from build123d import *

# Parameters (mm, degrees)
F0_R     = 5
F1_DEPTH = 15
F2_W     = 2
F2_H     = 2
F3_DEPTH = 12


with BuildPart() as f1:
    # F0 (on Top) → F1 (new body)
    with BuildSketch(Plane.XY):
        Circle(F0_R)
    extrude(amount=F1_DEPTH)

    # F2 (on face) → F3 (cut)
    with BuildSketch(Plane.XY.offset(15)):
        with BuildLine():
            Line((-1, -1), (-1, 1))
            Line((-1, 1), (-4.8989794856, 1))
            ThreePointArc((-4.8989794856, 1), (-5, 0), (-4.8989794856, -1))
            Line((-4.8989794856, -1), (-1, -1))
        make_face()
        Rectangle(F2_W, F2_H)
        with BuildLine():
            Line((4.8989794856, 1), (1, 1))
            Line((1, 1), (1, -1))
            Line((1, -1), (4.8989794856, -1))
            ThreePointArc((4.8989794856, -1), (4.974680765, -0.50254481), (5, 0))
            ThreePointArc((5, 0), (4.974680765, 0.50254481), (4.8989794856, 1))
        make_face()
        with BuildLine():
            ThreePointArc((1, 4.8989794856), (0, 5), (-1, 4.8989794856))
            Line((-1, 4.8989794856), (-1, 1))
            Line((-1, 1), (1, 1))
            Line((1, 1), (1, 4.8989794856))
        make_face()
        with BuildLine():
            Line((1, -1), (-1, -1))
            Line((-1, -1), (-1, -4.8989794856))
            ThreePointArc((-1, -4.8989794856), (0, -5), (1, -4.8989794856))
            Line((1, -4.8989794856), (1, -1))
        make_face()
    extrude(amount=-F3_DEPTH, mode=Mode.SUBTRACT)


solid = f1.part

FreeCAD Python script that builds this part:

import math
import FreeCAD as App
import Part
import Sketcher

V = App.Vector

doc = App.newDocument("Part")
params = doc.addObject("Spreadsheet::Sheet", "Params")
for row, (alias, value) in enumerate([
    ("sketch1_diameter", "10 mm"),
    ("pad1_length", "15 mm"),
    ("sketch2_radius", "5 mm"),
    ("pocket1_length", "12 mm"),
], start=1):
    params.set(f"A{row}", alias)
    params.set(f"B{row}", "=" + value)
    params.setAlias(f"B{row}", alias)

body = doc.addObject("PartDesign::Body", "Body")

# Sketch on XY plane
sketch1 = doc.addObject("Sketcher::SketchObject", "Sketch")
body.addObject(sketch1)
sketch1.AttachmentSupport = (doc.XY_Plane, [""])
sketch1.MapMode = "FlatFace"
sketch1.addGeometry(Part.Circle(V(0, 0, 0), V(0, 0, 1), 5), False)
sketch1.addConstraint([
    Sketcher.Constraint("Coincident", 0, 3, -1, 1),
    Sketcher.Constraint("Diameter", 0, 10.0),
])
sketch1.setExpression("Constraints[1]", "Params.sketch1_diameter")
pad1 = doc.addObject("PartDesign::Pad", "Pad")
body.addObject(pad1)
pad1.Profile = sketch1
pad1.setExpression("Length", "Params.pad1_length")

# Sketch on XY plane
sketch2 = doc.addObject("Sketcher::SketchObject", "Sketch001")
body.addObject(sketch2)
sketch2.AttachmentSupport = (doc.XY_Plane, [""])
sketch2.MapMode = "FlatFace"
sketch2.AttachmentOffset = App.Placement(V(0, 0, 15), App.Rotation())
sketch2.addGeometry([
    Part.ArcOfCircle(Part.Circle(V(0, 0, 0), V(0, 0, 1), 5), math.radians(168), math.radians(192)),  # 0
    Part.LineSegment(V(-4.9, -1, 0), V(-1, -1, 0)),  # 1
    Part.LineSegment(V(-1, -1, 0), V(-1, -4.9, 0)),  # 2
    Part.ArcOfCircle(Part.Circle(V(0, 0, 0), V(0, 0, 1), 5), math.radians(-102), math.radians(-78)),  # 3
    Part.LineSegment(V(1, -4.9, 0), V(1, -1, 0)),  # 4
    Part.LineSegment(V(1, -1, 0), V(4.9, -1, 0)),  # 5
    Part.ArcOfCircle(Part.Circle(V(0, 0, 0), V(0, 0, 1), 5), math.radians(-11.54), math.radians(0)),  # 6
    Part.ArcOfCircle(Part.Circle(V(0, 0, 0), V(0, 0, 1), 5), math.radians(0), math.radians(11.54)),  # 7
    Part.LineSegment(V(4.9, 1, 0), V(1, 1, 0)),  # 8
    Part.LineSegment(V(1, 1, 0), V(1, 4.9, 0)),  # 9
    Part.ArcOfCircle(Part.Circle(V(0, 0, 0), V(0, 0, 1), 5), math.radians(78), math.radians(102)),  # 10
    Part.LineSegment(V(-1, 4.9, 0), V(-1, 1, 0)),  # 11
    Part.LineSegment(V(-1, 1, 0), V(-4.9, 1, 0)),  # 12
], False)
sketch2.addConstraint([
    Sketcher.Constraint("Coincident", 0, 2, 1, 1),
    Sketcher.Constraint("Coincident", 1, 2, 2, 1),
    Sketcher.Constraint("Coincident", 2, 2, 3, 1),
    Sketcher.Constraint("Coincident", 3, 2, 4, 1),
    Sketcher.Constraint("Coincident", 4, 2, 5, 1),
    Sketcher.Constraint("Coincident", 5, 2, 6, 1),
    Sketcher.Constraint("Tangent", 6, 2, 7, 1),
    Sketcher.Constraint("Coincident", 7, 2, 8, 1),
    Sketcher.Constraint("Coincident", 8, 2, 9, 1),
    Sketcher.Constraint("Coincident", 9, 2, 10, 1),
    Sketcher.Constraint("Coincident", 10, 2, 11, 1),
    Sketcher.Constraint("Coincident", 11, 2, 12, 1),
    Sketcher.Constraint("Coincident", 12, 2, 0, 1),
    Sketcher.Constraint("Horizontal", 1),
    Sketcher.Constraint("Vertical", 2),
    Sketcher.Constraint("Vertical", 4),
    Sketcher.Constraint("Horizontal", 5),
    Sketcher.Constraint("Horizontal", 8),
    Sketcher.Constraint("Vertical", 9),
    Sketcher.Constraint("Vertical", 11),
    Sketcher.Constraint("Horizontal", 12),
    Sketcher.Constraint("Coincident", 0, 3, -1, 1),
    Sketcher.Constraint("Coincident", 3, 3, -1, 1),
    Sketcher.Constraint("Coincident", 6, 3, -1, 1),
    Sketcher.Constraint("Coincident", 10, 3, -1, 1),
    Sketcher.Constraint("Equal", 0, 3),
    Sketcher.Constraint("Equal", 3, 6),
    Sketcher.Constraint("Equal", 6, 7),
    Sketcher.Constraint("Equal", 7, 10),
    Sketcher.Constraint("Symmetric", 1, 2, 8, 2, -1, 1),
    Sketcher.Constraint("Symmetric", 4, 2, 11, 2, -1, 1),
    Sketcher.Constraint("Symmetric", 1, 2, 4, 2, -2),
    Sketcher.Constraint("PointOnObject", 6, 2, -1),
    Sketcher.Constraint("Equal", 12, 2),
    Sketcher.Constraint("Radius", 0, 5.0),
    Sketcher.Constraint("DistanceY", 0, 2, -1, 1, 1.0),
])
sketch2.setExpression("Constraints[34]", "Params.sketch2_radius")
pocket1 = doc.addObject("PartDesign::Pocket", "Pocket")
body.addObject(pocket1)
pocket1.Profile = sketch2
pocket1.setExpression("Length", "Params.pocket1_length")

doc.recompute()
